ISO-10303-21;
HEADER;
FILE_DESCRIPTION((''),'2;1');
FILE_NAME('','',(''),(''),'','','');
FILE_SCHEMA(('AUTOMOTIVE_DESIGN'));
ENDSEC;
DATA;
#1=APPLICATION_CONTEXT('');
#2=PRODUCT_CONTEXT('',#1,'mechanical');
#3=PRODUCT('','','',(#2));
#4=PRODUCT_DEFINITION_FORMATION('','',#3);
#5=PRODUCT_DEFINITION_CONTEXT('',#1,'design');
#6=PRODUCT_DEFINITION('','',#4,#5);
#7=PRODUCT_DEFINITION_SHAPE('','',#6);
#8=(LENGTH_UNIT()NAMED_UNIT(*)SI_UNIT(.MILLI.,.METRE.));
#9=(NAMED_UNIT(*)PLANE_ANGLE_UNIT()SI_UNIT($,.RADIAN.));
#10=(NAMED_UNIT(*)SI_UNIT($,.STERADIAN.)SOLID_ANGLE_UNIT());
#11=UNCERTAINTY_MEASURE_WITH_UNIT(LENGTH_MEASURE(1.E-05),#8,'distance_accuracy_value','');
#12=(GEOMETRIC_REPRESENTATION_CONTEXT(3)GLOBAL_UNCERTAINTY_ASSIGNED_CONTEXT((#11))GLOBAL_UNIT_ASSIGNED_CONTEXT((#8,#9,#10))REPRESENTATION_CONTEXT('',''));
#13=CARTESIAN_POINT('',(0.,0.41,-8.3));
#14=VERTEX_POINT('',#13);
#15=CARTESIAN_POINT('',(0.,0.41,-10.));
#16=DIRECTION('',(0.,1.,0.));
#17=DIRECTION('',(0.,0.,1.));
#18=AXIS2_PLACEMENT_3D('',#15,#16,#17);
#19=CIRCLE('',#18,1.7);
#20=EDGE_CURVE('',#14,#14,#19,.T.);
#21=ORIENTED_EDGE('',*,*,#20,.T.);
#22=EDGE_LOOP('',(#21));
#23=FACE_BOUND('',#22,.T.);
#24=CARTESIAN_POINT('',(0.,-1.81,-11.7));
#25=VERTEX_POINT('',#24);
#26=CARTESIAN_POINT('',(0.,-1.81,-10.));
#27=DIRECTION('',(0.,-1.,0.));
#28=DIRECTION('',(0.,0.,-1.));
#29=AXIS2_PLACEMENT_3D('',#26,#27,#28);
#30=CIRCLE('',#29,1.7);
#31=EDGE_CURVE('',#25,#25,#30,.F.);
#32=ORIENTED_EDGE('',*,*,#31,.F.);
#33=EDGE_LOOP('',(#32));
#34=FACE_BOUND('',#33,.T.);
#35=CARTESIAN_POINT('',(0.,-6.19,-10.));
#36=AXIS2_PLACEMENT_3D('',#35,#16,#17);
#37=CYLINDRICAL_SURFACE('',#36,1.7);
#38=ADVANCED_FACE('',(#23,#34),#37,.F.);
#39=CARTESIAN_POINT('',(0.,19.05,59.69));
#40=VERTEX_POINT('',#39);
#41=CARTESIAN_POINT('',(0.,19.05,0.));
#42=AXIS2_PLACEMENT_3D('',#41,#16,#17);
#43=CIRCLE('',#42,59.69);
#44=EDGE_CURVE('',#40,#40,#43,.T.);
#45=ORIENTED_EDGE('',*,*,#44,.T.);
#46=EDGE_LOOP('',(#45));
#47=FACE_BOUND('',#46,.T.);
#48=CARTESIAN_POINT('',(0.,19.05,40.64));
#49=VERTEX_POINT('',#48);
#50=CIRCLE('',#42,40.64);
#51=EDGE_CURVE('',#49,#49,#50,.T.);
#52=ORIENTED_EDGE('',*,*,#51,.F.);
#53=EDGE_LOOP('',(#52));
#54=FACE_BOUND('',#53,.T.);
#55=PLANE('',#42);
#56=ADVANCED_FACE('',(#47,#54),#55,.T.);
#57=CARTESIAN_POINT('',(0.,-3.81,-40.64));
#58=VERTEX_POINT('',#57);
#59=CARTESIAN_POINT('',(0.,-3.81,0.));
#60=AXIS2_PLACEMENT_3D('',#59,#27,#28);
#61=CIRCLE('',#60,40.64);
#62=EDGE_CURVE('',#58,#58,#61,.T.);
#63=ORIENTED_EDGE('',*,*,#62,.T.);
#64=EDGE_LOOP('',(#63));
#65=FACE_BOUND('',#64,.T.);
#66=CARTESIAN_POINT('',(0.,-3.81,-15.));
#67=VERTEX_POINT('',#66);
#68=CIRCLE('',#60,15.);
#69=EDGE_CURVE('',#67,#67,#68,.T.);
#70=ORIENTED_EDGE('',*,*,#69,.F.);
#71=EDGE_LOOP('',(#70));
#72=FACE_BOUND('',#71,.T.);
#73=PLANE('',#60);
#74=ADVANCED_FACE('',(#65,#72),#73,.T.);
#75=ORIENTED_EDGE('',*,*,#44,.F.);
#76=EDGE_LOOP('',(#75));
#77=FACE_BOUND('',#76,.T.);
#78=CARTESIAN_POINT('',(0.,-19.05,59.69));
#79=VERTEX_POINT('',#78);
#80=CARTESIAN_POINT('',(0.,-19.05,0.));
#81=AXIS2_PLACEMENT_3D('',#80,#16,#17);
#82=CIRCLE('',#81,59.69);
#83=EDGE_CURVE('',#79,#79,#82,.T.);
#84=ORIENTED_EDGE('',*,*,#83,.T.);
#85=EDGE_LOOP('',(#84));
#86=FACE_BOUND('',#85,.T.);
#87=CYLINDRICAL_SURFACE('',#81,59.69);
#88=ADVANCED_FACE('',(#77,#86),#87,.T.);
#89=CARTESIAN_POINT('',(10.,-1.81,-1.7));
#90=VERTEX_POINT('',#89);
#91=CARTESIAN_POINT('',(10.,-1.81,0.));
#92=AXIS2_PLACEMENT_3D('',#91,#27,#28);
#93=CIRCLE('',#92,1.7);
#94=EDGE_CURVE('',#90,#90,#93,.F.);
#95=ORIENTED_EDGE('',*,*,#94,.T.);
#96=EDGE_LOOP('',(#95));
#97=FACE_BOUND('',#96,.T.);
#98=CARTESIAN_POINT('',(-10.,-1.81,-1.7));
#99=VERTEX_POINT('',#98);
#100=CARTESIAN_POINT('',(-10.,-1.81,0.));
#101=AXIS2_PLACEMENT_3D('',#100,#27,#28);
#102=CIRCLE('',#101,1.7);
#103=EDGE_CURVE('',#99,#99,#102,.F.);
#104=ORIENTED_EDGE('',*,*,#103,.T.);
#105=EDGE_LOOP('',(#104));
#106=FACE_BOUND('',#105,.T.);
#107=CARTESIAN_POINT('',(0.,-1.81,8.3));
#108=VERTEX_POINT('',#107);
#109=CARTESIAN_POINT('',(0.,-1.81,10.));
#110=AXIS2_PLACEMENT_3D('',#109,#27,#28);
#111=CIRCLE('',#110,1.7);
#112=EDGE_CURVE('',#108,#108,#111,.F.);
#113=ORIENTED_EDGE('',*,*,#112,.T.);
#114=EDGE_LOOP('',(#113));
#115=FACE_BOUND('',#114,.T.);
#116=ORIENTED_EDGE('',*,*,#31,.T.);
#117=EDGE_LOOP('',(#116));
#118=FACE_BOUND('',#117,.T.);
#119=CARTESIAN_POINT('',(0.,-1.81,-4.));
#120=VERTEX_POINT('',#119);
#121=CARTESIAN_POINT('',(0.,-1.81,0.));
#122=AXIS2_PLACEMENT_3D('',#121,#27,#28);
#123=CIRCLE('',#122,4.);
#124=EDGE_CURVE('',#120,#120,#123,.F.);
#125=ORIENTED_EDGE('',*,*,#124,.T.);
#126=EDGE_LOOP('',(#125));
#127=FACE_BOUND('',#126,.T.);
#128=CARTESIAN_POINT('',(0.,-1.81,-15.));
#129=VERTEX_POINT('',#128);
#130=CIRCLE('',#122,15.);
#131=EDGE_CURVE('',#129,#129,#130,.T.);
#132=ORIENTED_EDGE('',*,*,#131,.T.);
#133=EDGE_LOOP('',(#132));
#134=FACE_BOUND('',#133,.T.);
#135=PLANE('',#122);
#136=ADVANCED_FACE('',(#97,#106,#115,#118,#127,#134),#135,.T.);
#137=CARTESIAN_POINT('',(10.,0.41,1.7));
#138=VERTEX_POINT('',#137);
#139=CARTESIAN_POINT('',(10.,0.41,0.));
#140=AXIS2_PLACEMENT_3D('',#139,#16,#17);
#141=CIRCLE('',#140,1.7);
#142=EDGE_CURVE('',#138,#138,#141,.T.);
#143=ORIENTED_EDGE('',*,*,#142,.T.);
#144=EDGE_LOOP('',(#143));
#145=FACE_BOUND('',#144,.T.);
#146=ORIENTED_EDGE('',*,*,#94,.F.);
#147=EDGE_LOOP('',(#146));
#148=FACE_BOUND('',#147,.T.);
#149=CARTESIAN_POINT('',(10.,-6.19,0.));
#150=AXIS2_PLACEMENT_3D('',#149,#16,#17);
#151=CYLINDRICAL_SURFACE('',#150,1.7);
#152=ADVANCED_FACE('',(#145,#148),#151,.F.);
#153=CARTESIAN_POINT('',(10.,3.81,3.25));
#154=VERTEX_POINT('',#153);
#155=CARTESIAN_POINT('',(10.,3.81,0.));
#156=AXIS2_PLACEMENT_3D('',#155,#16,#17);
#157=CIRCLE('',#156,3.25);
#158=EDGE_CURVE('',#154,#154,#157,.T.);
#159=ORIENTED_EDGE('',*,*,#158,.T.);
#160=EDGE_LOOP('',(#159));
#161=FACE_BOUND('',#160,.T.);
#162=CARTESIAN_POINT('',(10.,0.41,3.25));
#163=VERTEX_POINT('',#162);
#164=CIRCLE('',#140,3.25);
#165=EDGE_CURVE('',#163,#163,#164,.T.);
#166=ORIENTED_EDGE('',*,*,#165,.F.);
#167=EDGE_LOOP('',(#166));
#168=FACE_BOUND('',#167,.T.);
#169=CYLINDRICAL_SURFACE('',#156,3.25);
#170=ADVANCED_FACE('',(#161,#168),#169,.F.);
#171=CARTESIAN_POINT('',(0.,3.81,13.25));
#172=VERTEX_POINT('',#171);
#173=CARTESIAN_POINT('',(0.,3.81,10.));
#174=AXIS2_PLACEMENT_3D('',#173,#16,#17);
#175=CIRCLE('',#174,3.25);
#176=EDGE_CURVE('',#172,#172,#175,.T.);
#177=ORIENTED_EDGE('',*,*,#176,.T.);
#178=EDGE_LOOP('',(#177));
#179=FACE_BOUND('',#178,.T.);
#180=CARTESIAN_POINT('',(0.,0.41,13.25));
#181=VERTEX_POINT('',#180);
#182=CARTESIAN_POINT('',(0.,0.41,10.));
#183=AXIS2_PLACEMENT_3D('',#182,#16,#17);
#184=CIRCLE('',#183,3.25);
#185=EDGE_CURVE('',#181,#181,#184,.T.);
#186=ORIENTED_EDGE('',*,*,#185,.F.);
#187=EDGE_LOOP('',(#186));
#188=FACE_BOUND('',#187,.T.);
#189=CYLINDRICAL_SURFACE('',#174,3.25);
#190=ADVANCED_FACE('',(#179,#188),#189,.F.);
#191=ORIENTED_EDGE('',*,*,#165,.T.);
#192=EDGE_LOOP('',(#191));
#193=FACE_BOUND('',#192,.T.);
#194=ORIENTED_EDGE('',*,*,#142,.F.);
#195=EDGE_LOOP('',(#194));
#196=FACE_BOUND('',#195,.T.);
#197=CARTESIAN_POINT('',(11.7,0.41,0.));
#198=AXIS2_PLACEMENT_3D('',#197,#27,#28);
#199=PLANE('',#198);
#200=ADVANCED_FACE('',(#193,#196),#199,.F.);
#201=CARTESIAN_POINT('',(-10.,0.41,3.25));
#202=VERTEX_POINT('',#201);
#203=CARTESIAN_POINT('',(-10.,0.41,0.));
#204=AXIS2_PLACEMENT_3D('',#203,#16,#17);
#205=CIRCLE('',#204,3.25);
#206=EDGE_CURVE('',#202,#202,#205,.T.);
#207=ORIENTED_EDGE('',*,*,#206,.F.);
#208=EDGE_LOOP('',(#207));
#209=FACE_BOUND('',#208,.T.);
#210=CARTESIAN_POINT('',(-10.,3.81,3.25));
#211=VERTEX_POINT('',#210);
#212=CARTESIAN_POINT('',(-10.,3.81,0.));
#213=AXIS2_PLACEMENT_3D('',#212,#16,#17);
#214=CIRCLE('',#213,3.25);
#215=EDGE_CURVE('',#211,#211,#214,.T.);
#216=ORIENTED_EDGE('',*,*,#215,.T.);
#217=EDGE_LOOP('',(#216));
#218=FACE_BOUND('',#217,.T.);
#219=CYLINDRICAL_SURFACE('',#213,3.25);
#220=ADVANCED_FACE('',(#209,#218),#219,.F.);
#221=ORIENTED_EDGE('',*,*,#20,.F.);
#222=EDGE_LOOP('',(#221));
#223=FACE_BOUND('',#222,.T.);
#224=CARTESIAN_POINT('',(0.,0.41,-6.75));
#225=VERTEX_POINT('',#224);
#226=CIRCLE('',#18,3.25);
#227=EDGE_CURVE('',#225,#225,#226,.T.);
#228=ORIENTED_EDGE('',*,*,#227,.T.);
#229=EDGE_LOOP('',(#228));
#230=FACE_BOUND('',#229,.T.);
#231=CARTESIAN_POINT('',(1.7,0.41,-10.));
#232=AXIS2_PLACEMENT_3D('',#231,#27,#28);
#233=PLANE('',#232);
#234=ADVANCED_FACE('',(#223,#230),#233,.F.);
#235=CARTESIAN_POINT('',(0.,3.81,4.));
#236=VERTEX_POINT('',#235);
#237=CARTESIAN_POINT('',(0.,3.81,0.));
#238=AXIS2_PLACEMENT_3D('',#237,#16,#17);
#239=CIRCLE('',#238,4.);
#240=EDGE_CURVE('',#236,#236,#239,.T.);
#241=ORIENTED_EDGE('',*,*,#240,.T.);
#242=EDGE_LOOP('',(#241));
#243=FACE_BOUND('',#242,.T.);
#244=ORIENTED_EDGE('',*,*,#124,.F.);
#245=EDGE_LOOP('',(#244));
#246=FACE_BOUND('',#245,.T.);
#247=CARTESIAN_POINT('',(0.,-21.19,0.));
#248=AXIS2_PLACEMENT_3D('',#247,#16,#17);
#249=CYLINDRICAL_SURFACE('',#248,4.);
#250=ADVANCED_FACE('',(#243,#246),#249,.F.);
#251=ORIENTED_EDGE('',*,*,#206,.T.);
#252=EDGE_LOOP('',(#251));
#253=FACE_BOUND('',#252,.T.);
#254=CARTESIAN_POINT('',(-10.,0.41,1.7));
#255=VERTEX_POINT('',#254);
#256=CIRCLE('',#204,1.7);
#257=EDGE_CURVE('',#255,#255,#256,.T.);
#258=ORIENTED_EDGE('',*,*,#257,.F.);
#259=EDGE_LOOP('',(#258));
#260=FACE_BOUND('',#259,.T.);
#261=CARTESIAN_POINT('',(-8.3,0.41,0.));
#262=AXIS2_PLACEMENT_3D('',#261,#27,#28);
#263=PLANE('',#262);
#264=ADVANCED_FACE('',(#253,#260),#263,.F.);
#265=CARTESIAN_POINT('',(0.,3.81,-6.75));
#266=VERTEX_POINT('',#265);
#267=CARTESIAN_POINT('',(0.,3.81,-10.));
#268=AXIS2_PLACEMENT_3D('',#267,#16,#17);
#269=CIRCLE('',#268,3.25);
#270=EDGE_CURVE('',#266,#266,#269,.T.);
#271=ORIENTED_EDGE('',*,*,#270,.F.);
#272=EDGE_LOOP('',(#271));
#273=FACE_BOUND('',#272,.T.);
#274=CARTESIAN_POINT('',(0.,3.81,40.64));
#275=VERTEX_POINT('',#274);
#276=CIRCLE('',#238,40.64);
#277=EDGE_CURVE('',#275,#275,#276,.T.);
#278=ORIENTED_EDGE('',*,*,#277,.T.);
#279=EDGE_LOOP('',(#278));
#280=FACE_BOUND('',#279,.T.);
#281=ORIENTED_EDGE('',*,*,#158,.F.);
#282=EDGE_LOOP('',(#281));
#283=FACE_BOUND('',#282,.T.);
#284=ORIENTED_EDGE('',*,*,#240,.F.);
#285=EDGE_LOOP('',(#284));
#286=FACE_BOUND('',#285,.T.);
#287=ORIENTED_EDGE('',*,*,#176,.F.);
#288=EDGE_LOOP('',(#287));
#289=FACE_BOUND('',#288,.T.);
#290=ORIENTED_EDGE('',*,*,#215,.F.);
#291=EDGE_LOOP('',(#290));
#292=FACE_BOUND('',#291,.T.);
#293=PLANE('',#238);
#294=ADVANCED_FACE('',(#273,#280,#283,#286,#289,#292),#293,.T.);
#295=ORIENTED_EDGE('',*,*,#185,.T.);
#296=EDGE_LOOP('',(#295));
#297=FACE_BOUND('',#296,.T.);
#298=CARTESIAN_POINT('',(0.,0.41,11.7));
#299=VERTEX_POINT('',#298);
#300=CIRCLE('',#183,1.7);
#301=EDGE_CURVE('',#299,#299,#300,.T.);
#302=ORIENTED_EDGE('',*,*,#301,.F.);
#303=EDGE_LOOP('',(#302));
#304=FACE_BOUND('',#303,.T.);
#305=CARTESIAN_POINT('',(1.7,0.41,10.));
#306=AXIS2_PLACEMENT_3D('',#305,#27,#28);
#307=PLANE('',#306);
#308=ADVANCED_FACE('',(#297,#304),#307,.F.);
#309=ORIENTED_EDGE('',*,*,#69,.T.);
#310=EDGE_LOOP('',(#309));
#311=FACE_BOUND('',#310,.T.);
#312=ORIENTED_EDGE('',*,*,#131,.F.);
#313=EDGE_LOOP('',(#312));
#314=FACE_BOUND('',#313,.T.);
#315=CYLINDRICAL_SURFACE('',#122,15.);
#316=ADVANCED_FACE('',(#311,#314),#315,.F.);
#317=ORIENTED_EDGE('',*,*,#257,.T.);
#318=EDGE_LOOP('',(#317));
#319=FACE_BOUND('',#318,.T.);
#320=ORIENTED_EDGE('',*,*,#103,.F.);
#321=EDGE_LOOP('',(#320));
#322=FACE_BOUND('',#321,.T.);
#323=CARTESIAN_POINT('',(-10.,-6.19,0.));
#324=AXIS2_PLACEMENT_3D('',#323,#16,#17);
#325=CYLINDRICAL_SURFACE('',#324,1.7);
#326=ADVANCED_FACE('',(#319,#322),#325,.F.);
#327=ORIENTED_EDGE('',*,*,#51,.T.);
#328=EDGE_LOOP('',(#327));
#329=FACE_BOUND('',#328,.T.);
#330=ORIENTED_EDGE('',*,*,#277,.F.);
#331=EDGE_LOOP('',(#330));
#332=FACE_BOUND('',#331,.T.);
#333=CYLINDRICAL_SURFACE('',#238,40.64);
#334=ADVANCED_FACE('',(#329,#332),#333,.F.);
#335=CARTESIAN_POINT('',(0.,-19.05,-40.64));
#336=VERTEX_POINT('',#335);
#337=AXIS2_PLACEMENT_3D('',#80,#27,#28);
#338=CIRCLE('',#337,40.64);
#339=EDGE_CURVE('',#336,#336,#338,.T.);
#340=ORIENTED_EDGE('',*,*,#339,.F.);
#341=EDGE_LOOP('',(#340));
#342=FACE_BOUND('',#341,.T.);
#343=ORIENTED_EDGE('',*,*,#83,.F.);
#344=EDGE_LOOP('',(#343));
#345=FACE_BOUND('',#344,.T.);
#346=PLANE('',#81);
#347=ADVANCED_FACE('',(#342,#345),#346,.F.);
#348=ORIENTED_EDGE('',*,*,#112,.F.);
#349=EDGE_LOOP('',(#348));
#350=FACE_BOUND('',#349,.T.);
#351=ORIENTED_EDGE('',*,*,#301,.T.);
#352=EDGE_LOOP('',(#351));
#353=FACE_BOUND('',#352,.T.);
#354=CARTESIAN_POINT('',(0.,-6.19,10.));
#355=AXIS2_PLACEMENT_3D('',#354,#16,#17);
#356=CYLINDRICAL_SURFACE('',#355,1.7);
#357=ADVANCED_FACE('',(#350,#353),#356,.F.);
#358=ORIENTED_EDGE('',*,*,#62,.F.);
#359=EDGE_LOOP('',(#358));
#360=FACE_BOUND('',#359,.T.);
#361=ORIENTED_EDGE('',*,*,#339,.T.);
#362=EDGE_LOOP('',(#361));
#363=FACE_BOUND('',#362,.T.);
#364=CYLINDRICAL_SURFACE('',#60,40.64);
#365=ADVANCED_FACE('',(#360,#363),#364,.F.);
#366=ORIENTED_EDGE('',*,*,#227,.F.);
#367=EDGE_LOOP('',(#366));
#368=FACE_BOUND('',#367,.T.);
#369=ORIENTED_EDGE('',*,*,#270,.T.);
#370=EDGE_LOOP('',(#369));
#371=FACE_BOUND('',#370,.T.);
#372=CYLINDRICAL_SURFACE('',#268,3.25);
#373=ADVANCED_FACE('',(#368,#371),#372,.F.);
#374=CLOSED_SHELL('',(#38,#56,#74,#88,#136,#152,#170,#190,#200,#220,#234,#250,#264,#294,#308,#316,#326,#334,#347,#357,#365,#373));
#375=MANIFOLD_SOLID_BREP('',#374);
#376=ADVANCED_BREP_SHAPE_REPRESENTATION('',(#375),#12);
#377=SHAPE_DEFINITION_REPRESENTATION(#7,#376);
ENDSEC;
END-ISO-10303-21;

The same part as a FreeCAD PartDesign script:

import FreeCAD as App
import Part
import Sketcher
Q = App.Units.Quantity

doc = App.newDocument("Part")
body = doc.addObject("PartDesign::Body", "Body")

# Sketch on XZ plane
sketch1 = doc.addObject("Sketcher::SketchObject", "Sketch")
body.addObject(sketch1)
sketch1.AttachmentSupport = (doc.XZ_Plane, [""])
sketch1.MapMode = "FlatFace"
sketch1.addGeometry(Part.Circle(App.Vector(0, 0, 0), App.Vector(0, 0, 1), 60), False)
sketch1.addConstraint([
    Sketcher.Constraint("Coincident", 0, 3, -1, 1),
    Sketcher.Constraint("Diameter", 0, Q("119.38 mm")),
])
pad1 = doc.addObject("PartDesign::Pad", "Pad")
body.addObject(pad1)
pad1.Profile = sketch1
pad1.Type = "TwoLengths"
pad1.Length = 19.05
pad1.Length2 = 19.05
pad1.Reversed = True

# Sketch on XZ plane
sketch2 = doc.addObject("Sketcher::SketchObject", "Sketch001")
body.addObject(sketch2)
sketch2.AttachmentSupport = (doc.XZ_Plane, [""])
sketch2.MapMode = "FlatFace"
sketch2.AttachmentOffset = App.Placement(App.Vector(0, 0, 19.05), App.Rotation())
sketch2.addGeometry(Part.Circle(App.Vector(0, 0, 0), App.Vector(0, 0, 1), 41), False)
sketch2.addConstraint([
    Sketcher.Constraint("Coincident", 0, 3, -1, 1),
    Sketcher.Constraint("Diameter", 0, Q("81.28 mm")),
])
pocket1 = doc.addObject("PartDesign::Pocket", "Pocket")
body.addObject(pocket1)
pocket1.Profile = sketch2
pocket1.Length = 15.24

# Sketch on XZ plane
sketch3 = doc.addObject("Sketcher::SketchObject", "Sketch002")
body.addObject(sketch3)
sketch3.AttachmentSupport = (doc.XZ_Plane, [""])
sketch3.MapMode = "FlatFace"
sketch3.AttachmentOffset = App.Placement(App.Vector(0, 0, -19.05), App.Rotation())
sketch3.addGeometry(Part.Circle(App.Vector(0, 0, 0), App.Vector(0, 0, 1), 41), False)
sketch3.addConstraint([
    Sketcher.Constraint("Coincident", 0, 3, -1, 1),
    Sketcher.Constraint("Diameter", 0, Q("81.28 mm")),
])
pocket2 = doc.addObject("PartDesign::Pocket", "Pocket001")
body.addObject(pocket2)
pocket2.Profile = sketch3
pocket2.Length = 15.24
pocket2.Reversed = True

# Sketch on XZ plane
sketch4 = doc.addObject("Sketcher::SketchObject", "Sketch003")
body.addObject(sketch4)
sketch4.AttachmentSupport = (doc.XZ_Plane, [""])
sketch4.MapMode = "FlatFace"
sketch4.AttachmentOffset = App.Placement(App.Vector(0, 0, -3.81), App.Rotation())
sketch4.addGeometry(Part.Circle(App.Vector(0, 0, 0), App.Vector(0, 0, 1), 4), False)
sketch4.addConstraint([
    Sketcher.Constraint("Coincident", 0, 3, -1, 1),
    Sketcher.Constraint("Diameter", 0, Q("8 mm")),
])
pocket3 = doc.addObject("PartDesign::Pocket", "Pocket002")
body.addObject(pocket3)
pocket3.Profile = sketch4
pocket3.Length = 25
pocket3.Reversed = True

# Sketch on XZ plane
sketch5 = doc.addObject("Sketcher::SketchObject", "Sketch004")
body.addObject(sketch5)
sketch5.AttachmentSupport = (doc.XZ_Plane, [""])
sketch5.MapMode = "FlatFace"
sketch5.AttachmentOffset = App.Placement(App.Vector(0, 0, -3.81), App.Rotation())
sketch5.addGeometry(Part.Circle(App.Vector(0, 10, 0), App.Vector(0, 0, 1), 1.7), False)
sketch5.addConstraint([
    Sketcher.Constraint("PointOnObject", 0, 3, -2),
    Sketcher.Constraint("Diameter", 0, Q("3.4 mm")),
    Sketcher.Constraint("DistanceY", -1, 1, 0, 3, Q("10 mm")),
])
pocket4 = doc.addObject("PartDesign::Pocket", "Pocket003")
body.addObject(pocket4)
pocket4.Profile = sketch5
pocket4.Length = 10
pocket4.Reversed = True
doc.recompute()

polarpattern = doc.addObject("PartDesign::PolarPattern", "PolarPattern")
body.addObject(polarpattern)
polarpattern.Originals = [pocket3, pocket4]
polarpattern.Axis = (doc.Y_Axis, [""])
polarpattern.Angle = 360
polarpattern.Occurrences = 4
body.Tip = polarpattern

# Sketch on XZ plane
sketch6 = doc.addObject("Sketcher::SketchObject", "Sketch005")
body.addObject(sketch6)
sketch6.AttachmentSupport = (doc.XZ_Plane, [""])
sketch6.MapMode = "FlatFace"
sketch6.AttachmentOffset = App.Placement(App.Vector(0, 0, -3.81), App.Rotation())
sketch6.addGeometry([
    Part.Circle(App.Vector(0, 10, 0), App.Vector(0, 0, 1), 1.7),
    Part.Circle(App.Vector(10, 0, 0), App.Vector(0, 0, 1), 1.7),
    Part.Circle(App.Vector(0, -10, 0), App.Vector(0, 0, 1), 1.7),
    Part.Circle(App.Vector(-10, 0, 0), App.Vector(0, 0, 1), 1.7),
], False)
sketch6.addConstraint([
    Sketcher.Constraint("Equal", 0, 1),
    Sketcher.Constraint("Equal", 1, 2),
    Sketcher.Constraint("Equal", 2, 3),
    Sketcher.Constraint("Symmetric", 0, 3, 2, 3, -1, 1),
    Sketcher.Constraint("Symmetric", 1, 3, 3, 3, -1, 1),
    Sketcher.Constraint("PointOnObject", 0, 3, -2),
    Sketcher.Constraint("PointOnObject", 1, 3, -1),
    Sketcher.Constraint("Diameter", 0, Q("3.4 mm")),
    Sketcher.Constraint("DistanceY", -1, 1, 0, 3, Q("10 mm")),
    Sketcher.Constraint("DistanceX", -1, 1, 1, 3, Q("10 mm")),
])
doc.recompute()
hole = doc.addObject("PartDesign::Hole", "Hole")
body.addObject(hole)
hole.Profile = sketch6
hole.ThreadType = "None"
hole.Diameter = 3.4
hole.DepthType = "Dimension"
hole.Depth = 5
hole.DrillPoint = "Angled"
hole.DrillPointAngle = 118
hole.HoleCutType = "Counterbore"
hole.HoleCutDiameter = 6.5
hole.HoleCutDepth = 3.4
hole.Reversed = True

# Sketch on XZ plane
sketch7 = doc.addObject("Sketcher::SketchObject", "Sketch006")
body.addObject(sketch7)
sketch7.AttachmentSupport = (doc.XZ_Plane, [""])
sketch7.MapMode = "FlatFace"
sketch7.AttachmentOffset = App.Placement(App.Vector(0, 0, 3.81), App.Rotation())
sketch7.addGeometry(Part.Circle(App.Vector(0, 0, 0), App.Vector(0, 0, 1), 15), False)
sketch7.addConstraint([
    Sketcher.Constraint("Coincident", 0, 3, -1, 1),
    Sketcher.Constraint("Diameter", 0, Q("30 mm")),
])
pocket5 = doc.addObject("PartDesign::Pocket", "Pocket004")
body.addObject(pocket5)
pocket5.Profile = sketch7
pocket5.Length = 2

doc.recompute()
